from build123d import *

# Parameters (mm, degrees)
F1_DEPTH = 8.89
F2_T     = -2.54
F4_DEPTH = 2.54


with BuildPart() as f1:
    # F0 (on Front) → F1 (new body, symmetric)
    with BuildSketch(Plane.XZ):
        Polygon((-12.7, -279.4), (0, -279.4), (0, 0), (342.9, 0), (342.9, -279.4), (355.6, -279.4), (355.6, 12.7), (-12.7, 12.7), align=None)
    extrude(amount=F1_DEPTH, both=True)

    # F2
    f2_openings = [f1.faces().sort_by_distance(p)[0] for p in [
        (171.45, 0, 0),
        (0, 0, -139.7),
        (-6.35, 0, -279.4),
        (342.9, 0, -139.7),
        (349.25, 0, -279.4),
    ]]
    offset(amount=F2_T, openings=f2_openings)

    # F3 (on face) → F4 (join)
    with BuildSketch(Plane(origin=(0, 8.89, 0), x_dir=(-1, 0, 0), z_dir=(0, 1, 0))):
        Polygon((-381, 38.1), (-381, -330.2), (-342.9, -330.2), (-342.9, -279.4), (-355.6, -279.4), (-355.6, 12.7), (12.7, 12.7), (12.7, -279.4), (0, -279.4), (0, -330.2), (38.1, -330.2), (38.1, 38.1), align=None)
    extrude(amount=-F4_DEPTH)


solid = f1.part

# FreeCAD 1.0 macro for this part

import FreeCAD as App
import Part
import Sketcher
from FreeCAD import Vector
Q = App.Units.Quantity


def faces_at(feature, points):
    """Names of the faces that lie closest to the given points."""
    faces = feature.Shape.Faces
    near = lambda p: min(range(len(faces)), key=lambda i: faces[i].distToShape(Part.Vertex(*p))[0])
    return sorted({f"Face{near(p) + 1}" for p in points})

doc = App.newDocument("Part")
body = doc.addObject("PartDesign::Body", "Body")

# Sketch on XZ plane
sketch1 = body.newObject("Sketcher::SketchObject", "Sketch")
sketch1.AttachmentSupport = (doc.getObject("XZ_Plane"), [""])
sketch1.MapMode = "FlatFace"
sketch1.addGeometry(Part.LineSegment(Vector(-12.7, -279.4, 0), Vector(0, -279.4, 0)), False)
sketch1.addGeometry(Part.LineSegment(Vector(0, -279.4, 0), Vector(0, 0, 0)), False)
sketch1.addGeometry(Part.LineSegment(Vector(0, 0, 0), Vector(342.9, 0, 0)), False)
sketch1.addGeometry(Part.LineSegment(Vector(342.9, 0, 0), Vector(342.9, -279.4, 0)), False)
sketch1.addGeometry(Part.LineSegment(Vector(342.9, -279.4, 0), Vector(355.6, -279.4, 0)), False)
sketch1.addGeometry(Part.LineSegment(Vector(355.6, -279.4, 0), Vector(355.6, 12.7, 0)), False)
sketch1.addGeometry(Part.LineSegment(Vector(355.6, 12.7, 0), Vector(-12.7, 12.7, 0)), False)
sketch1.addGeometry(Part.LineSegment(Vector(-12.7, 12.7, 0), Vector(-12.7, -279.4, 0)), False)
sketch1.addConstraint(Sketcher.Constraint("Coincident", 0, 2, 1, 1))
sketch1.addConstraint(Sketcher.Constraint("Coincident", 1, 2, 2, 1))
sketch1.addConstraint(Sketcher.Constraint("Coincident", 2, 2, 3, 1))
sketch1.addConstraint(Sketcher.Constraint("Coincident", 3, 2, 4, 1))
sketch1.addConstraint(Sketcher.Constraint("Coincident", 4, 2, 5, 1))
sketch1.addConstraint(Sketcher.Constraint("Coincident", 5, 2, 6, 1))
sketch1.addConstraint(Sketcher.Constraint("Coincident", 6, 2, 7, 1))
sketch1.addConstraint(Sketcher.Constraint("Coincident", 7, 2, 0, 1))
sketch1.addConstraint(Sketcher.Constraint("Horizontal", 0))
sketch1.addConstraint(Sketcher.Constraint("Vertical", 1))
sketch1.addConstraint(Sketcher.Constraint("Horizontal", 2))
sketch1.addConstraint(Sketcher.Constraint("Vertical", 3))
sketch1.addConstraint(Sketcher.Constraint("Horizontal", 4))
sketch1.addConstraint(Sketcher.Constraint("Vertical", 5))
sketch1.addConstraint(Sketcher.Constraint("Horizontal", 6))
sketch1.addConstraint(Sketcher.Constraint("Vertical", 7))
sketch1.addConstraint(Sketcher.Constraint("Coincident", 1, 2, -1, 1))
sketch1.addConstraint(Sketcher.Constraint("Horizontal", 0, 2, 3, 2))
sketch1.addConstraint(Sketcher.Constraint("Equal", 0, 4))
sketch1.addConstraint(Sketcher.Constraint("DistanceY", 1, 1, 1, 2, Q("11 in")))
sketch1.addConstraint(Sketcher.Constraint("DistanceX", 0, 1, 0, 2, Q("0.5 in")))
sketch1.addConstraint(Sketcher.Constraint("DistanceX", 2, 1, 2, 2, Q("13.5 in")))
sketch1.addConstraint(Sketcher.Constraint("DistanceY", 5, 1, 5, 2, Q("11.5 in")))
pad1 = body.newObject("PartDesign::Pad", "Pad")
pad1.Profile = sketch1
pad1.Length = Q("0.7 in")
pad1.Midplane = True
doc.recompute()

thickness = body.newObject("PartDesign::Thickness", "Thickness")
thickness.Base = (pad1, faces_at(pad1, [
    (171.45, 0, 0),
    (0, 0, -139.7),
    (-6.35, 0, -279.4),
    (342.9, 0, -139.7),
    (349.25, 0, -279.4),
]))
thickness.Value = Q("0.1 in")
thickness.Reversed = True
thickness.Join = "Arc"

# Sketch on XZ plane
sketch2 = body.newObject("Sketcher::SketchObject", "Sketch001")
sketch2.AttachmentSupport = (doc.getObject("XZ_Plane"), [""])
sketch2.MapMode = "FlatFace"
sketch2.AttachmentOffset = App.Placement(Vector(0, 0, -0.35 * 25.4), App.Rotation())
sketch2.addGeometry(Part.LineSegment(Vector(381, 38.1, 0), Vector(381, -330.2, 0)), False)
sketch2.addGeometry(Part.LineSegment(Vector(381, -330.2, 0), Vector(342.9, -330.2, 0)), False)
sketch2.addGeometry(Part.LineSegment(Vector(342.9, -330.2, 0), Vector(342.9, -279.4, 0)), False)
sketch2.addGeometry(Part.LineSegment(Vector(342.9, -279.4, 0), Vector(355.6, -279.4, 0)), False)
sketch2.addGeometry(Part.LineSegment(Vector(355.6, -279.4, 0), Vector(355.6, 12.7, 0)), False)
sketch2.addGeometry(Part.LineSegment(Vector(355.6, 12.7, 0), Vector(-12.7, 12.7, 0)), False)
sketch2.addGeometry(Part.LineSegment(Vector(-12.7, 12.7, 0), Vector(-12.7, -279.4, 0)), False)
sketch2.addGeometry(Part.LineSegment(Vector(-12.7, -279.4, 0), Vector(0, -279.4, 0)), False)
sketch2.addGeometry(Part.LineSegment(Vector(0, -279.4, 0), Vector(0, -330.2, 0)), False)
sketch2.addGeometry(Part.LineSegment(Vector(0, -330.2, 0), Vector(-38.1, -330.2, 0)), False)
sketch2.addGeometry(Part.LineSegment(Vector(-38.1, -330.2, 0), Vector(-38.1, 38.1, 0)), False)
sketch2.addGeometry(Part.LineSegment(Vector(-38.1, 38.1, 0), Vector(381, 38.1, 0)), False)
sketch2.addConstraint(Sketcher.Constraint("Coincident", 0, 2, 1, 1))
sketch2.addConstraint(Sketcher.Constraint("Coincident", 1, 2, 2, 1))
sketch2.addConstraint(Sketcher.Constraint("Coincident", 2, 2, 3, 1))
sketch2.addConstraint(Sketcher.Constraint("Coincident", 3, 2, 4, 1))
sketch2.addConstraint(Sketcher.Constraint("Coincident", 4, 2, 5, 1))
sketch2.addConstraint(Sketcher.Constraint("Coincident", 5, 2, 6, 1))
sketch2.addConstraint(Sketcher.Constraint("Coincident", 6, 2, 7, 1))
sketch2.addConstraint(Sketcher.Constraint("Coincident", 7, 2, 8, 1))
sketch2.addConstraint(Sketcher.Constraint("Coincident", 8, 2, 9, 1))
sketch2.addConstraint(Sketcher.Constraint("Coincident", 9, 2, 10, 1))
sketch2.addConstraint(Sketcher.Constraint("Coincident", 10, 2, 11, 1))
sketch2.addConstraint(Sketcher.Constraint("Coincident", 11, 2, 0, 1))
sketch2.addConstraint(Sketcher.Constraint("Vertical", 0))
sketch2.addConstraint(Sketcher.Constraint("Horizontal", 1))
sketch2.addConstraint(Sketcher.Constraint("Vertical", 2))
sketch2.addConstraint(Sketcher.Constraint("Horizontal", 3))
sketch2.addConstraint(Sketcher.Constraint("Vertical", 4))
sketch2.addConstraint(Sketcher.Constraint("Horizontal", 5))
sketch2.addConstraint(Sketcher.Constraint("Vertical", 6))
sketch2.addConstraint(Sketcher.Constraint("Horizontal", 7))
sketch2.addConstraint(Sketcher.Constraint("Vertical", 8))
sketch2.addConstraint(Sketcher.Constraint("Horizontal", 9))
sketch2.addConstraint(Sketcher.Constraint("Vertical", 10))
sketch2.addConstraint(Sketcher.Constraint("Horizontal", 11))
sketch2.addConstraint(Sketcher.Constraint("PointOnObject", 7, 2, -2))
sketch2.addConstraint(Sketcher.Constraint("Horizontal", 3, 2, 6, 2))
sketch2.addConstraint(Sketcher.Constraint("Horizontal", 1, 2, 8, 2))
sketch2.addConstraint(Sketcher.Constraint("Equal", 3, 7))
sketch2.addConstraint(Sketcher.Constraint("Equal", 1, 9))
sketch2.addConstraint(Sketcher.Constraint("Equal", 5, 0))
sketch2.addConstraint(Sketcher.Constraint("DistanceY", 2, 1, 2, 2, Q("2 in")))
sketch2.addConstraint(Sketcher.Constraint("DistanceX", 1, 2, 1, 1, Q("1.5 in")))
sketch2.addConstraint(Sketcher.Constraint("DistanceX", 3, 1, 3, 2, Q("0.5 in")))
sketch2.addConstraint(Sketcher.Constraint("DistanceX", 5, 2, 5, 1, Q("14.5 in")))
sketch2.addConstraint(Sketcher.Constraint("DistanceY", 4, 1, 4, 2, Q("11.5 in")))
sketch2.addConstraint(Sketcher.Constraint("DistanceY", 0, 2, -1, 1, Q("13 in")))
pad2 = body.newObject("PartDesign::Pad", "Pad001")
pad2.Profile = sketch2
pad2.Length = Q("0.1 in")

doc.recompute()
